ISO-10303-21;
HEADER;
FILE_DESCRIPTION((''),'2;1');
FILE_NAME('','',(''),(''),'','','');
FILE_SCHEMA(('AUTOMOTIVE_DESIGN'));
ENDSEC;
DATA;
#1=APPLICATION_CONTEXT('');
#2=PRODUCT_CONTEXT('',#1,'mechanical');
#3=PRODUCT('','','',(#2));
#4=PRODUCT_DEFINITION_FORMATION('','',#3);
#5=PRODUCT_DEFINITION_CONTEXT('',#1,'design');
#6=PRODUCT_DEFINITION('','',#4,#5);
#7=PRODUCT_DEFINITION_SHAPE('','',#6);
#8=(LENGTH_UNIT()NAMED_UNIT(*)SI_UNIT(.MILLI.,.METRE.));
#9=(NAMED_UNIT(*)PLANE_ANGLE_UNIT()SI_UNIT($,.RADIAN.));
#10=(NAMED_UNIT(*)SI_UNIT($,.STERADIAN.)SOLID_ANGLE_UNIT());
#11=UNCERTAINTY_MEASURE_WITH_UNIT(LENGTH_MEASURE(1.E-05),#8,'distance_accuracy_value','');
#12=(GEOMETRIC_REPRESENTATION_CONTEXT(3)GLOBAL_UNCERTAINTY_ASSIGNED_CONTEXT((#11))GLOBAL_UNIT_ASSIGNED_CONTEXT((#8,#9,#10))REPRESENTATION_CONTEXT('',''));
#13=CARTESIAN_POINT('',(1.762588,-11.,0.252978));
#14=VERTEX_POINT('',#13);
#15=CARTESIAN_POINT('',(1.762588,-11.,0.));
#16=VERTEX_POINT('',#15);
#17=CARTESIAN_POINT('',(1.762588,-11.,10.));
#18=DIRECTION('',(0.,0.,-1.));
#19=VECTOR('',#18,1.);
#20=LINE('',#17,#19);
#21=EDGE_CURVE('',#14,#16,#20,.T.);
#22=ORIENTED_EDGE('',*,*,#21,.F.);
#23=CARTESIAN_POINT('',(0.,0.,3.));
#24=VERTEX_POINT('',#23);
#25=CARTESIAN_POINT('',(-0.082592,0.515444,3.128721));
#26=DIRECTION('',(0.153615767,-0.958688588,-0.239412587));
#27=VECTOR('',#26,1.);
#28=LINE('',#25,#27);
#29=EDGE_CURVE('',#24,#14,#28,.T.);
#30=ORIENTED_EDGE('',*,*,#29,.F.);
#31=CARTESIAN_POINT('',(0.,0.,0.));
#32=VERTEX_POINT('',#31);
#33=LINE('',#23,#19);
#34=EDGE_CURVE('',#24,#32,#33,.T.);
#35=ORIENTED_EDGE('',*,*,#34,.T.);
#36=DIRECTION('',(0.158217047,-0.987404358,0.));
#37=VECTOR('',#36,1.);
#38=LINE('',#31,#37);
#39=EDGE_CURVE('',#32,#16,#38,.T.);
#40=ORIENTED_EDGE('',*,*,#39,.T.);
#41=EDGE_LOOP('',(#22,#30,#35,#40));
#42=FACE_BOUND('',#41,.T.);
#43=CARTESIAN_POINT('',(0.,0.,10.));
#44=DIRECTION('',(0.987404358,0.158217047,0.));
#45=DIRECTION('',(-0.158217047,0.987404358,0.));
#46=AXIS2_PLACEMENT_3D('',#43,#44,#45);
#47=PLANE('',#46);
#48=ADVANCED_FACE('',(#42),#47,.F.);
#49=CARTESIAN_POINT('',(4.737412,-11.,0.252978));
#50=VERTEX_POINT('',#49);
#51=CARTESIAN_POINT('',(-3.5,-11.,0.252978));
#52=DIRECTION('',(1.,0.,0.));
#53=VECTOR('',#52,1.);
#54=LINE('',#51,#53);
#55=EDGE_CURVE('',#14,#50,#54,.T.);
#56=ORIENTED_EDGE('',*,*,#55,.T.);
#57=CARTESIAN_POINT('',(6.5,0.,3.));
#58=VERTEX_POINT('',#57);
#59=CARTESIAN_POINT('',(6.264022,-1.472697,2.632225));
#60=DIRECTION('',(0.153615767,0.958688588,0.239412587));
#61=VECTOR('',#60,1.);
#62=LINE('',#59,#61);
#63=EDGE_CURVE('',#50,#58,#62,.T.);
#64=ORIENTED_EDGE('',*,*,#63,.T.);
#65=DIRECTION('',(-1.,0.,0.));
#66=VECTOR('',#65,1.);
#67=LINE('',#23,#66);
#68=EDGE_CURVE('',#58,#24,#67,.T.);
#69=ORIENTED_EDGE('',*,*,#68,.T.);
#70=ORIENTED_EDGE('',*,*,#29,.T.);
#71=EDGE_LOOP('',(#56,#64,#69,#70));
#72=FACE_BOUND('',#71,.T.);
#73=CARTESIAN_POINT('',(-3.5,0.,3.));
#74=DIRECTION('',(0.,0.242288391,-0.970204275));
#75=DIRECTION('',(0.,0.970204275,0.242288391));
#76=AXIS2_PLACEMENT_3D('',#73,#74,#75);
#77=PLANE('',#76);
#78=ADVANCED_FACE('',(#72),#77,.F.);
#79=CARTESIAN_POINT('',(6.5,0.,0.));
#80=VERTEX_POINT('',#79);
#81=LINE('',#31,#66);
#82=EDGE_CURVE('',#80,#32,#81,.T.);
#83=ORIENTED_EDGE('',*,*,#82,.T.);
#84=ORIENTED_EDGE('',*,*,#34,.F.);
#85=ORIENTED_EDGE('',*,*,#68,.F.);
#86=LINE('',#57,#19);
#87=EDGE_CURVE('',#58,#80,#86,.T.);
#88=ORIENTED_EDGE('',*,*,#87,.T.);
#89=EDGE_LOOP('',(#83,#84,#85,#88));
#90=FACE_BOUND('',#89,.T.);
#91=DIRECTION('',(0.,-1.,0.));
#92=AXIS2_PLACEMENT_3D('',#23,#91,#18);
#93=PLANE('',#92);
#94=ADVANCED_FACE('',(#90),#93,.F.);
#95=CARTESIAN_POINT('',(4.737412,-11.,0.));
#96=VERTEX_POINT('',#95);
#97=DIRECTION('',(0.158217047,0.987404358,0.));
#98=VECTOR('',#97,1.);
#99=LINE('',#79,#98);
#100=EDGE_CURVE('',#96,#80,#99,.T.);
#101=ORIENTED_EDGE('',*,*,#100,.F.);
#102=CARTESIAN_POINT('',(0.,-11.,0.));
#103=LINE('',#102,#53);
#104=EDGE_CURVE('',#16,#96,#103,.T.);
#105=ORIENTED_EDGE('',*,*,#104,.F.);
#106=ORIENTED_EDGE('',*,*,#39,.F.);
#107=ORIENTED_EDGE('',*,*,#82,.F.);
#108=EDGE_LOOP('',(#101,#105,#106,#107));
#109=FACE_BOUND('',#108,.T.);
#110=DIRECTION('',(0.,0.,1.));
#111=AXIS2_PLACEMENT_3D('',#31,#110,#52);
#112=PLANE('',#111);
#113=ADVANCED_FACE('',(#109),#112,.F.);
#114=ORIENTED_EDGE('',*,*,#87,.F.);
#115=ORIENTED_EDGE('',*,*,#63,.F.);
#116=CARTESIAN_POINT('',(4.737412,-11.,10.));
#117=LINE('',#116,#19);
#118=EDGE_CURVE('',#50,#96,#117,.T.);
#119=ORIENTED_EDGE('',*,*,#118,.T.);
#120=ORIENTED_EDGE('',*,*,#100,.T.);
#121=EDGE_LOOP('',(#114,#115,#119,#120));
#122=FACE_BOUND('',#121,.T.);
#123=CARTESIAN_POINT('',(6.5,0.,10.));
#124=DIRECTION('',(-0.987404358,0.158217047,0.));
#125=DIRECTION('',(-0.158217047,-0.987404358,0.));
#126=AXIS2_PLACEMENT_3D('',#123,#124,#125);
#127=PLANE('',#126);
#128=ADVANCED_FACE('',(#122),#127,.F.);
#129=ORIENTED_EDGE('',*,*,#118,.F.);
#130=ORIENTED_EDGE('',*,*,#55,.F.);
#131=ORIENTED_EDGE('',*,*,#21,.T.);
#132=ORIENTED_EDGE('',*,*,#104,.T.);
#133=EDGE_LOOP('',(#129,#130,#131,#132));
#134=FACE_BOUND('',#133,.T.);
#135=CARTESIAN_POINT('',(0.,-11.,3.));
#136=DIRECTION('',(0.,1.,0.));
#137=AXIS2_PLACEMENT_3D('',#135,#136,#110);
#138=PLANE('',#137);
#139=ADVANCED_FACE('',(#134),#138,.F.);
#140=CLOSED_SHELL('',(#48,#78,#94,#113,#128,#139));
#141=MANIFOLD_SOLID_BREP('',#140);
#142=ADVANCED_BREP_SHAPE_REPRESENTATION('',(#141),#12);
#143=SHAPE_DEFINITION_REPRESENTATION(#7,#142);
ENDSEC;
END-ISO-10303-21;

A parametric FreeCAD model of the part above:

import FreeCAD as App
import Part
import Sketcher

V = App.Vector


def add_polygon(sketch, points):
    """Adds a closed chain of lines whose ends are joined by coincident constraints."""
    first, n = sketch.GeometryCount, len(points)
    for a, b in zip(points, points[1:] + points[:1]):
        sketch.addGeometry(Part.LineSegment(App.Vector(*a, 0), App.Vector(*b, 0)), False)
    for i in range(n):
        sketch.addConstraint(Sketcher.Constraint("Coincident", first + i, 2, first + (i + 1) % n, 1))

doc = App.newDocument("Part")
body = doc.addObject("PartDesign::Body", "Body")

sketch1 = body.newObject("Sketcher::SketchObject", "Sketch")
sketch1.AttachmentSupport = (doc.getObject("XY_Plane"), [""])
sketch1.MapMode = "FlatFace"
add_polygon(sketch1, [(0, 0), (0, -11), (6, -11), (6, 0)])
sketch1.addConstraint([
    Sketcher.Constraint("Vertical", 0),
    Sketcher.Constraint("Horizontal", 1),
    Sketcher.Constraint("Vertical", 2),
    Sketcher.Constraint("Horizontal", 3),
    Sketcher.Constraint("Coincident", 3, 2, -1, 1),
    Sketcher.Constraint("DistanceY", 0, 2, 0, 1, 11.0),
    Sketcher.Constraint("DistanceX", 1, 1, 1, 2, 6.5),
])
pad1 = body.newObject("PartDesign::Pad", "Pad")
pad1.Profile = sketch1
pad1.Length = 3

sketch2 = body.newObject("Sketcher::SketchObject", "Sketch001")
sketch2.AttachmentSupport = (doc.getObject("YZ_Plane"), [""])
sketch2.MapMode = "FlatFace"
sketch2.AttachmentOffset = App.Placement(V(0, 0, 6.5), App.Rotation())
add_polygon(sketch2, [(-11, 0.3), (0, 3), (-11, 3)])
sketch2.addConstraint([
    Sketcher.Constraint("Horizontal", 1),
    Sketcher.Constraint("Vertical", 2),
    Sketcher.Constraint("PointOnObject", 0, 2, -2),
    Sketcher.Constraint("DistanceX", 1, 2, 1, 1, 11.0),
    Sketcher.Constraint("DistanceY", -1, 1, 0, 2, 3.0),
    Sketcher.Constraint("DistanceY", 2, 2, 2, 1, 2.747022),
])
pocket1 = body.newObject("PartDesign::Pocket", "Pocket")
pocket1.Profile = sketch2
pocket1.Length = 10

sketch3 = body.newObject("Sketcher::SketchObject", "Sketch002")
sketch3.AttachmentSupport = (doc.getObject("XY_Plane"), [""])
sketch3.MapMode = "FlatFace"
add_polygon(sketch3, [(4.7, -11), (6.5, 0), (6.5, -11)])
add_polygon(sketch3, [(1.8, -11), (0, -11), (0, 0)])
sketch3.addConstraint([
    Sketcher.Constraint("Vertical", 1),
    Sketcher.Constraint("Horizontal", 2),
    Sketcher.Constraint("Horizontal", 3),
    Sketcher.Constraint("Vertical", 4),
    Sketcher.Constraint("Coincident", 4, 2, -1, 1),
    Sketcher.Constraint("PointOnObject", 0, 2, -1),
    Sketcher.Constraint("Horizontal", 2, 2, 3, 2),
    Sketcher.Constraint("Equal", 2, 3),
    Sketcher.Constraint("DistanceY", 1, 2, 1, 1, 11.0),
    Sketcher.Constraint("DistanceX", -1, 1, 0, 2, 6.5),
    Sketcher.Constraint("DistanceX", 2, 2, 2, 1, 1.762588),
])
pocket2 = body.newObject("PartDesign::Pocket", "Pocket001")
pocket2.Profile = sketch3
pocket2.Length = 10
pocket2.Reversed = True

doc.recompute()
